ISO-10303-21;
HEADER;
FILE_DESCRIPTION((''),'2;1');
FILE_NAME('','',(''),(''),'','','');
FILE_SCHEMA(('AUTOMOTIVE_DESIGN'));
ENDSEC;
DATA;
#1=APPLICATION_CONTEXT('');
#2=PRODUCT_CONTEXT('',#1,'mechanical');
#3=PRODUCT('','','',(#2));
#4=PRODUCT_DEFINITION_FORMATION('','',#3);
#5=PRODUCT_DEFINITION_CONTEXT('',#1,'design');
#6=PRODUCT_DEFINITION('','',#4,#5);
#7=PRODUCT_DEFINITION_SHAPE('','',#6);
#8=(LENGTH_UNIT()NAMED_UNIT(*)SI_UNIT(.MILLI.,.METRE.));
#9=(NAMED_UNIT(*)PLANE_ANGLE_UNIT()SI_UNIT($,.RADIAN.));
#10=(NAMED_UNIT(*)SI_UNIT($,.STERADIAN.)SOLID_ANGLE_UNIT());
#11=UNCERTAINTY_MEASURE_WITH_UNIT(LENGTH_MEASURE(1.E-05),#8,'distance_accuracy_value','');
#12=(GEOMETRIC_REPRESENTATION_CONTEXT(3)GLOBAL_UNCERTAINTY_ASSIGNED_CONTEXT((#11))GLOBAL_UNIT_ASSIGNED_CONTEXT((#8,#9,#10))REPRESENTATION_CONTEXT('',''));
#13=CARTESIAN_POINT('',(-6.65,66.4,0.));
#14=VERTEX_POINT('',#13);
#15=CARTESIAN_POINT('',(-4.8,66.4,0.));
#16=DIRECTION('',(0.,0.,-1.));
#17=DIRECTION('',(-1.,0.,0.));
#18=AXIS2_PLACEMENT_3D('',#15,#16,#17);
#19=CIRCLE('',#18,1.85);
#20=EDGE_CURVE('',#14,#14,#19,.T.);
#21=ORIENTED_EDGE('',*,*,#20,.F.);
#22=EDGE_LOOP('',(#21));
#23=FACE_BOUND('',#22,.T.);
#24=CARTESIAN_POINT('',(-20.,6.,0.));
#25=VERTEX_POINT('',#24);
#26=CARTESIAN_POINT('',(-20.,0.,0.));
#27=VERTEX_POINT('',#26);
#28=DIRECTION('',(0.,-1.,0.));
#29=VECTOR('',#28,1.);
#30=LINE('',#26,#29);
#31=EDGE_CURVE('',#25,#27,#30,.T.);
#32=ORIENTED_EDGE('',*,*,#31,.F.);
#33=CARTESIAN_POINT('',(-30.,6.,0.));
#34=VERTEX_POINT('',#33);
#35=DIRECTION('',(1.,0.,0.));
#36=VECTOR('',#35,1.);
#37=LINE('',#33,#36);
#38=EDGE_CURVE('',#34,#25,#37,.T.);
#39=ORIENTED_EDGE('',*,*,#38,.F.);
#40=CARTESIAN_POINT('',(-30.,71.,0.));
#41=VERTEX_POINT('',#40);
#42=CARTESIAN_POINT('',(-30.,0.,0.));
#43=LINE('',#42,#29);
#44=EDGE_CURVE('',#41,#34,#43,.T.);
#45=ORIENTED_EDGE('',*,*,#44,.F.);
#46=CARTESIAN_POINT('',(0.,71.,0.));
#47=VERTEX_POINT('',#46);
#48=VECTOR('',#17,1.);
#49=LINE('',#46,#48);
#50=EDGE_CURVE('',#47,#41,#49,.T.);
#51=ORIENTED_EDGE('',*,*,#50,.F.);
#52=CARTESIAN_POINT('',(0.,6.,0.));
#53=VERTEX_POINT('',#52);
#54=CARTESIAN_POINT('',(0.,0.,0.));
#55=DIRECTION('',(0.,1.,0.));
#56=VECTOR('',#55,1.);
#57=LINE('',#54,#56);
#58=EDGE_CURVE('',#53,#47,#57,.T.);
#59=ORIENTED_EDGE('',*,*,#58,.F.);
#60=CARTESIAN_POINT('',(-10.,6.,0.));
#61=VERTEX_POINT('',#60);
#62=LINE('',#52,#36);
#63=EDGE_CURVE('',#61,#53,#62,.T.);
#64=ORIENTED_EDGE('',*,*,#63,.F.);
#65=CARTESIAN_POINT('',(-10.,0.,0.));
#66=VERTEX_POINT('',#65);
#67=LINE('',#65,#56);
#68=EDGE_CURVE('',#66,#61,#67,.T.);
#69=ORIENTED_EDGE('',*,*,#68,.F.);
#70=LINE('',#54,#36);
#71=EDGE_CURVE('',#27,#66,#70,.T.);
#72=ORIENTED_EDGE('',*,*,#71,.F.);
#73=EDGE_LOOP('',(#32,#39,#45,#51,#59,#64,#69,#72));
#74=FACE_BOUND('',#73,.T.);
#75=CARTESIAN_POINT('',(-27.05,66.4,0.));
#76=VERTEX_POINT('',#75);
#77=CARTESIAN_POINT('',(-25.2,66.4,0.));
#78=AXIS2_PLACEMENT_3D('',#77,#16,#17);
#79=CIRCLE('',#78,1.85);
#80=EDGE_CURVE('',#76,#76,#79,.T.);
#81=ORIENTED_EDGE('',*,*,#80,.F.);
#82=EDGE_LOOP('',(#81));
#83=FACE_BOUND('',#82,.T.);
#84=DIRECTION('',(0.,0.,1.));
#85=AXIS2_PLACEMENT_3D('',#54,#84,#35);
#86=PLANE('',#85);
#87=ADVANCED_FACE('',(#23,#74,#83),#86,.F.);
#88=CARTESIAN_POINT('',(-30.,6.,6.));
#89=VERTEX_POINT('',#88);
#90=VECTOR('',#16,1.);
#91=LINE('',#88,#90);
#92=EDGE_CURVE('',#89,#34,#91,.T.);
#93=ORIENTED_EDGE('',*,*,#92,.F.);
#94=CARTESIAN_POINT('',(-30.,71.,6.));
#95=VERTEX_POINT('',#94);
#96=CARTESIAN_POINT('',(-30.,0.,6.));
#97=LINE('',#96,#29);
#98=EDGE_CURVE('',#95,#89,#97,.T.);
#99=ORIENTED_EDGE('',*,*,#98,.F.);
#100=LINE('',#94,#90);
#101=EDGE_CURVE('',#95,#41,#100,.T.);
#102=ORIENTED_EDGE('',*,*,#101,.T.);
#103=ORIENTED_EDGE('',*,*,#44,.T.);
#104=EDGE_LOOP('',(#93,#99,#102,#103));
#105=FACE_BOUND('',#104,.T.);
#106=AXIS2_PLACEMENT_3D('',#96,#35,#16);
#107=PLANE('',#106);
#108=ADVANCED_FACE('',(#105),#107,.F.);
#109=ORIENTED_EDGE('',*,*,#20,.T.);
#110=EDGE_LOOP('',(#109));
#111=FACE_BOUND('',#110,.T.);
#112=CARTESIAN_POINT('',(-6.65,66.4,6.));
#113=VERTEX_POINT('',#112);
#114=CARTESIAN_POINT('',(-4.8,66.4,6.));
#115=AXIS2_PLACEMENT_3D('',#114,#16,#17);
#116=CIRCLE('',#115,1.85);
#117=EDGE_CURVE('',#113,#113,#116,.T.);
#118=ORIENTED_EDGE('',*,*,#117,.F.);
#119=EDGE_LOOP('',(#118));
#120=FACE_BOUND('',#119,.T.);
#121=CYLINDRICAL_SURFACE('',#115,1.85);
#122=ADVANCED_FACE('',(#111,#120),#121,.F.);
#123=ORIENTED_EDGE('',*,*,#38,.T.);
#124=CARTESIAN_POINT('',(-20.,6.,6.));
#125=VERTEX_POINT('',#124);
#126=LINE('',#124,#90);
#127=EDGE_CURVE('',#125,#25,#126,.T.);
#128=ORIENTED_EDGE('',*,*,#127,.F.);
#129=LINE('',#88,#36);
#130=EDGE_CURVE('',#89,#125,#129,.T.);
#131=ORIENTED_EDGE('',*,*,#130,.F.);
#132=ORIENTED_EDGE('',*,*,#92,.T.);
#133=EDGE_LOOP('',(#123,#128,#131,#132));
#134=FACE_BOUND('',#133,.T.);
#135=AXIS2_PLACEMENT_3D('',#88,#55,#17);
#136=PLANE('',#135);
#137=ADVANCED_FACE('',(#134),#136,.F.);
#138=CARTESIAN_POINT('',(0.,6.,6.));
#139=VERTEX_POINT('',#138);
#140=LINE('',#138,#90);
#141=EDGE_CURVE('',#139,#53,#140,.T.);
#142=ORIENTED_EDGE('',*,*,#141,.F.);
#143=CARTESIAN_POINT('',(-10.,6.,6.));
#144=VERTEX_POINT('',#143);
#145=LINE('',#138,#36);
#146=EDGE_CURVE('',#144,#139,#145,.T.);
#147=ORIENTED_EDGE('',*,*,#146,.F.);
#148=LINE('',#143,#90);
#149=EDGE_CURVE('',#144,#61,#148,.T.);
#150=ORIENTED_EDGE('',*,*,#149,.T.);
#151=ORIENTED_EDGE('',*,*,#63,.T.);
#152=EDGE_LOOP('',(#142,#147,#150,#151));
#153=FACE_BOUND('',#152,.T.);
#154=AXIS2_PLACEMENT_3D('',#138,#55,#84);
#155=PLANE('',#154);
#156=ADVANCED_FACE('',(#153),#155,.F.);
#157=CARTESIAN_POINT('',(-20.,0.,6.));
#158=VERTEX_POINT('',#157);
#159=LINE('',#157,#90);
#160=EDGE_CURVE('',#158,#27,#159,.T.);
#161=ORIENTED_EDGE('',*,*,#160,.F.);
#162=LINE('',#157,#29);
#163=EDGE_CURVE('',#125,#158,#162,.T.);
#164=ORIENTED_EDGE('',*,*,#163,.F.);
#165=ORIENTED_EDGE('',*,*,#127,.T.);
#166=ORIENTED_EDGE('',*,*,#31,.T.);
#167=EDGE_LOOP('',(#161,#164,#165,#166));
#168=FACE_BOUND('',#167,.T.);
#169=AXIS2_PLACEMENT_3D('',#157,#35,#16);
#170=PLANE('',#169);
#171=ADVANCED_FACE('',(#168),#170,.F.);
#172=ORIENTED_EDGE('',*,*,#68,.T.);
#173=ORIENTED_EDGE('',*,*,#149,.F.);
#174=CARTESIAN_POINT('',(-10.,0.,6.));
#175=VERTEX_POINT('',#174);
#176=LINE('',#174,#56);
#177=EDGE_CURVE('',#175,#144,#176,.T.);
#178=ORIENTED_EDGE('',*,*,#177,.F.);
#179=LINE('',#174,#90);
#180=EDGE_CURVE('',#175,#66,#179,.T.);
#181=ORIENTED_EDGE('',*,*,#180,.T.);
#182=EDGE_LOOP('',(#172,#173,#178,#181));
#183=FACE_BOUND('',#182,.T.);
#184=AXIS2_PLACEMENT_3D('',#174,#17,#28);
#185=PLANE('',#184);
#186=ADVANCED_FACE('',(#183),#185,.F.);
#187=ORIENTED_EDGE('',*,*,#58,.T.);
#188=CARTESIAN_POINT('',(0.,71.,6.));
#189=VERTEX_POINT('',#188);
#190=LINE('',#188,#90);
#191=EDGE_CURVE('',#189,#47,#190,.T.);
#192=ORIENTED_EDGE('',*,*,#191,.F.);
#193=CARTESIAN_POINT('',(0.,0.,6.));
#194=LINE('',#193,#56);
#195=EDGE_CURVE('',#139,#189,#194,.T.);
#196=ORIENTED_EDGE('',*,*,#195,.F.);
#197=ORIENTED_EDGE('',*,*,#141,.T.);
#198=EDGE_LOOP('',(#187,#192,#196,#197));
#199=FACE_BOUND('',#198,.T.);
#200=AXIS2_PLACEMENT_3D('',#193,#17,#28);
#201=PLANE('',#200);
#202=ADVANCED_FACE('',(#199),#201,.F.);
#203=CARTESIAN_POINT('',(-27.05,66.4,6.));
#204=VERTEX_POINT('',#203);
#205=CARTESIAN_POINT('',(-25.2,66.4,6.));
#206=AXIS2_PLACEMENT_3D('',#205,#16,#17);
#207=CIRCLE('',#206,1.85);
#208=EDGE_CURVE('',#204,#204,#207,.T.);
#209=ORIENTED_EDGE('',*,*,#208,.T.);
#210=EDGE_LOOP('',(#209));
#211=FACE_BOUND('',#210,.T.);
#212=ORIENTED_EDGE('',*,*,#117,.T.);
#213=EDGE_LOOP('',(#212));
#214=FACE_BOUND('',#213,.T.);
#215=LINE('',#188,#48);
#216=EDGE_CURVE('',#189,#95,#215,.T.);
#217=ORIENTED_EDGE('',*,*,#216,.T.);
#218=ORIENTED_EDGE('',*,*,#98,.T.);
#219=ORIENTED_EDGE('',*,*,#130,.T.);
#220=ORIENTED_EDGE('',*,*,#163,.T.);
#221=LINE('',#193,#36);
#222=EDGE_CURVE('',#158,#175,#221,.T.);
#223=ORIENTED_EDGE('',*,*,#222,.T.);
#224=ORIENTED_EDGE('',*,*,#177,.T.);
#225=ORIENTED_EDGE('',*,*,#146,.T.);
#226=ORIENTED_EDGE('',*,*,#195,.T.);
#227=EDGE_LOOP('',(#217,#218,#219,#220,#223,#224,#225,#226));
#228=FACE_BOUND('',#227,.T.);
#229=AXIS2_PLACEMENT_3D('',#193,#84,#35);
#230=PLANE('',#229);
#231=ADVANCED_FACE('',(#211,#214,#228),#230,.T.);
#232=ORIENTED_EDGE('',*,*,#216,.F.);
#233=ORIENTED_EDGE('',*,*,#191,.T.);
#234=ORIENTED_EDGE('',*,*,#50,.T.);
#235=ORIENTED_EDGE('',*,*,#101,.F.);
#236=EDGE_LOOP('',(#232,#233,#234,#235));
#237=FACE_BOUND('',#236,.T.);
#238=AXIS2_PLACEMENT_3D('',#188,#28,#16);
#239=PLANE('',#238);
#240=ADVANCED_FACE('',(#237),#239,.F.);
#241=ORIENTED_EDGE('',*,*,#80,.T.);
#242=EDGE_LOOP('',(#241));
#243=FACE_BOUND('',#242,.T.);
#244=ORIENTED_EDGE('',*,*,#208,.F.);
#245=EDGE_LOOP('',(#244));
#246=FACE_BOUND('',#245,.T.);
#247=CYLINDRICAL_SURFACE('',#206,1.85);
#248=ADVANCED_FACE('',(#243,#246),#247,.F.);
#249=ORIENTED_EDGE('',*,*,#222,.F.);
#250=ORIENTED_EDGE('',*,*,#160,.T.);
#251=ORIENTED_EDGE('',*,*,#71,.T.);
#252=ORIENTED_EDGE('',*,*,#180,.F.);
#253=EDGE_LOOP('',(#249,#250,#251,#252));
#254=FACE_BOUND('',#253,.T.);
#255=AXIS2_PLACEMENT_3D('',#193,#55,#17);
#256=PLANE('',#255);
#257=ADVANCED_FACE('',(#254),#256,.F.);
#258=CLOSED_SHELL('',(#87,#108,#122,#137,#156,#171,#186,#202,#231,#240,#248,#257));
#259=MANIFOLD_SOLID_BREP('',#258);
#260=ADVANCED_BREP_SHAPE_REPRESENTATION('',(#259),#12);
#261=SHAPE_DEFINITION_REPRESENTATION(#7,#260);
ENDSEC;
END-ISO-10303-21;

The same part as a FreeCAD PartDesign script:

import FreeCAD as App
import Part
import Sketcher

V = App.Vector

doc = App.newDocument("Part")
body = doc.addObject("PartDesign::Body", "Body")

# Sketch on XY plane
sketch1 = doc.addObject("Sketcher::SketchObject", "Sketch")
body.addObject(sketch1)
sketch1.AttachmentSupport = (doc.XY_Plane, [""])
sketch1.MapMode = "FlatFace"
sketch1.addGeometry([
    Part.LineSegment(V(-30, 71, 0), V(-30, 0, 0)),
    Part.LineSegment(V(-30, 0, 0), V(0, 0, 0)),
    Part.LineSegment(V(0, 0, 0), V(0, 71, 0)),
    Part.LineSegment(V(0, 71, 0), V(-30, 71, 0)),
], False)
sketch1.addConstraint([
    Sketcher.Constraint("Coincident", 0, 2, 1, 1),
    Sketcher.Constraint("Coincident", 1, 2, 2, 1),
    Sketcher.Constraint("Coincident", 2, 2, 3, 1),
    Sketcher.Constraint("Coincident", 3, 2, 0, 1),
    Sketcher.Constraint("Vertical", 0),
    Sketcher.Constraint("Horizontal", 1),
    Sketcher.Constraint("Vertical", 2),
    Sketcher.Constraint("Horizontal", 3),
    Sketcher.Constraint("Coincident", 1, 2, -1, 1),
    Sketcher.Constraint("DistanceX", 1, 1, 1, 2, 30.0),
    Sketcher.Constraint("DistanceY", 0, 2, 0, 1, 71.0),
])
pad1 = doc.addObject("PartDesign::Pad", "Pad")
body.addObject(pad1)
pad1.Profile = sketch1
pad1.Length = 6

# Sketch on XY plane
sketch2 = doc.addObject("Sketcher::SketchObject", "Sketch001")
body.addObject(sketch2)
sketch2.AttachmentSupport = (doc.XY_Plane, [""])
sketch2.MapMode = "FlatFace"
sketch2.addGeometry([
    Part.Circle(V(-4.8, 66.4, 0), V(0, 0, 1), 1.9),  # 0
    Part.Circle(V(-25.2, 66.4, 0), V(0, 0, 1), 1.9),  # 1
    Part.LineSegment(V(0, 6, 0), V(0, 0, 0)),  # 2
    Part.LineSegment(V(0, 0, 0), V(-10, 0, 0)),  # 3
    Part.LineSegment(V(-10, 0, 0), V(-10, 6, 0)),  # 4
    Part.LineSegment(V(-10, 6, 0), V(0, 6, 0)),  # 5
    Part.LineSegment(V(-20, 6, 0), V(-20, 0, 0)),  # 6
    Part.LineSegment(V(-20, 0, 0), V(-30, 0, 0)),  # 7
    Part.LineSegment(V(-30, 0, 0), V(-30, 6, 0)),  # 8
    Part.LineSegment(V(-30, 6, 0), V(-20, 6, 0)),  # 9
], False)
sketch2.addConstraint([
    Sketcher.Constraint("Coincident", 2, 2, 3, 1),
    Sketcher.Constraint("Coincident", 3, 2, 4, 1),
    Sketcher.Constraint("Coincident", 4, 2, 5, 1),
    Sketcher.Constraint("Coincident", 5, 2, 2, 1),
    Sketcher.Constraint("Coincident", 6, 2, 7, 1),
    Sketcher.Constraint("Coincident", 7, 2, 8, 1),
    Sketcher.Constraint("Coincident", 8, 2, 9, 1),
    Sketcher.Constraint("Coincident", 9, 2, 6, 1),
    Sketcher.Constraint("Vertical", 2),
    Sketcher.Constraint("Horizontal", 3),
    Sketcher.Constraint("Vertical", 4),
    Sketcher.Constraint("Horizontal", 5),
    Sketcher.Constraint("Vertical", 6),
    Sketcher.Constraint("Horizontal", 7),
    Sketcher.Constraint("Vertical", 8),
    Sketcher.Constraint("Horizontal", 9),
    Sketcher.Constraint("Coincident", 2, 2, -1, 1),
    Sketcher.Constraint("Equal", 0, 1),
    Sketcher.Constraint("PointOnObject", 6, 2, -1),
    Sketcher.Constraint("Horizontal", 0, 3, 1, 3),
    Sketcher.Constraint("Horizontal", 5, 2, 8, 2),
    Sketcher.Constraint("Equal", 5, 7),
    Sketcher.Constraint("Diameter", 0, 3.7),
    Sketcher.Constraint("DistanceX", 3, 2, 3, 1, 10.0),
    Sketcher.Constraint("DistanceY", 2, 2, 2, 1, 6.0),
    Sketcher.Constraint("DistanceX", 6, 2, -1, 1, 20.0),
    Sketcher.Constraint("DistanceX", 0, 3, -1, 1, 4.8),
    Sketcher.Constraint("DistanceY", -1, 1, 0, 3, 66.4),
    Sketcher.Constraint("DistanceX", 1, 3, -1, 1, 25.2),
])
pocket1 = doc.addObject("PartDesign::Pocket", "Pocket")
body.addObject(pocket1)
pocket1.Profile = sketch2
pocket1.Length = 6
pocket1.Reversed = True

doc.recompute()
